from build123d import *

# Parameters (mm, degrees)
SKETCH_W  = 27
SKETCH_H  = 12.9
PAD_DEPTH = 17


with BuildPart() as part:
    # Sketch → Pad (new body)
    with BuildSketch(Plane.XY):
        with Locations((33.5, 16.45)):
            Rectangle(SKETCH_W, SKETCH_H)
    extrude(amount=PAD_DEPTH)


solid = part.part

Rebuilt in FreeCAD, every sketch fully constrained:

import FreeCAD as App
import Part
import Sketcher
Q = App.Units.Quantity


def add_polygon(sketch, points):
    """Adds a closed chain of lines whose ends are joined by coincident constraints."""
    first, n = sketch.GeometryCount, len(points)
    for a, b in zip(points, points[1:] + points[:1]):
        sketch.addGeometry(Part.LineSegment(App.Vector(*a, 0), App.Vector(*b, 0)), False)
    for i in range(n):
        sketch.addConstraint(Sketcher.Constraint("Coincident", first + i, 2, first + (i + 1) % n, 1))

doc = App.newDocument("Part")
body = doc.addObject("PartDesign::Body", "Body")

sketch1 = body.newObject("Sketcher::SketchObject", "Sketch")
sketch1.AttachmentSupport = (doc.getObject("XY_Plane"), [""])
sketch1.MapMode = "FlatFace"
add_polygon(sketch1, [(20, 23), (20, 10), (47, 10), (47, 23)])
sketch1.addConstraint([
    Sketcher.Constraint("Vertical", 0),
    Sketcher.Constraint("Horizontal", 1),
    Sketcher.Constraint("Vertical", 2),
    Sketcher.Constraint("Horizontal", 3),
    Sketcher.Constraint("DistanceX", 1, 1, 1, 2, Q("27 mm")),
    Sketcher.Constraint("DistanceY", 0, 2, 0, 1, Q("12.9 mm")),
    Sketcher.Constraint("DistanceX", -1, 1, 0, 2, Q("20 mm")),
    Sketcher.Constraint("DistanceY", -1, 1, 0, 2, Q("10 mm")),
])
pad1 = body.newObject("PartDesign::Pad", "Pad")
pad1.Profile = sketch1
pad1.Length = 17

doc.recompute()
